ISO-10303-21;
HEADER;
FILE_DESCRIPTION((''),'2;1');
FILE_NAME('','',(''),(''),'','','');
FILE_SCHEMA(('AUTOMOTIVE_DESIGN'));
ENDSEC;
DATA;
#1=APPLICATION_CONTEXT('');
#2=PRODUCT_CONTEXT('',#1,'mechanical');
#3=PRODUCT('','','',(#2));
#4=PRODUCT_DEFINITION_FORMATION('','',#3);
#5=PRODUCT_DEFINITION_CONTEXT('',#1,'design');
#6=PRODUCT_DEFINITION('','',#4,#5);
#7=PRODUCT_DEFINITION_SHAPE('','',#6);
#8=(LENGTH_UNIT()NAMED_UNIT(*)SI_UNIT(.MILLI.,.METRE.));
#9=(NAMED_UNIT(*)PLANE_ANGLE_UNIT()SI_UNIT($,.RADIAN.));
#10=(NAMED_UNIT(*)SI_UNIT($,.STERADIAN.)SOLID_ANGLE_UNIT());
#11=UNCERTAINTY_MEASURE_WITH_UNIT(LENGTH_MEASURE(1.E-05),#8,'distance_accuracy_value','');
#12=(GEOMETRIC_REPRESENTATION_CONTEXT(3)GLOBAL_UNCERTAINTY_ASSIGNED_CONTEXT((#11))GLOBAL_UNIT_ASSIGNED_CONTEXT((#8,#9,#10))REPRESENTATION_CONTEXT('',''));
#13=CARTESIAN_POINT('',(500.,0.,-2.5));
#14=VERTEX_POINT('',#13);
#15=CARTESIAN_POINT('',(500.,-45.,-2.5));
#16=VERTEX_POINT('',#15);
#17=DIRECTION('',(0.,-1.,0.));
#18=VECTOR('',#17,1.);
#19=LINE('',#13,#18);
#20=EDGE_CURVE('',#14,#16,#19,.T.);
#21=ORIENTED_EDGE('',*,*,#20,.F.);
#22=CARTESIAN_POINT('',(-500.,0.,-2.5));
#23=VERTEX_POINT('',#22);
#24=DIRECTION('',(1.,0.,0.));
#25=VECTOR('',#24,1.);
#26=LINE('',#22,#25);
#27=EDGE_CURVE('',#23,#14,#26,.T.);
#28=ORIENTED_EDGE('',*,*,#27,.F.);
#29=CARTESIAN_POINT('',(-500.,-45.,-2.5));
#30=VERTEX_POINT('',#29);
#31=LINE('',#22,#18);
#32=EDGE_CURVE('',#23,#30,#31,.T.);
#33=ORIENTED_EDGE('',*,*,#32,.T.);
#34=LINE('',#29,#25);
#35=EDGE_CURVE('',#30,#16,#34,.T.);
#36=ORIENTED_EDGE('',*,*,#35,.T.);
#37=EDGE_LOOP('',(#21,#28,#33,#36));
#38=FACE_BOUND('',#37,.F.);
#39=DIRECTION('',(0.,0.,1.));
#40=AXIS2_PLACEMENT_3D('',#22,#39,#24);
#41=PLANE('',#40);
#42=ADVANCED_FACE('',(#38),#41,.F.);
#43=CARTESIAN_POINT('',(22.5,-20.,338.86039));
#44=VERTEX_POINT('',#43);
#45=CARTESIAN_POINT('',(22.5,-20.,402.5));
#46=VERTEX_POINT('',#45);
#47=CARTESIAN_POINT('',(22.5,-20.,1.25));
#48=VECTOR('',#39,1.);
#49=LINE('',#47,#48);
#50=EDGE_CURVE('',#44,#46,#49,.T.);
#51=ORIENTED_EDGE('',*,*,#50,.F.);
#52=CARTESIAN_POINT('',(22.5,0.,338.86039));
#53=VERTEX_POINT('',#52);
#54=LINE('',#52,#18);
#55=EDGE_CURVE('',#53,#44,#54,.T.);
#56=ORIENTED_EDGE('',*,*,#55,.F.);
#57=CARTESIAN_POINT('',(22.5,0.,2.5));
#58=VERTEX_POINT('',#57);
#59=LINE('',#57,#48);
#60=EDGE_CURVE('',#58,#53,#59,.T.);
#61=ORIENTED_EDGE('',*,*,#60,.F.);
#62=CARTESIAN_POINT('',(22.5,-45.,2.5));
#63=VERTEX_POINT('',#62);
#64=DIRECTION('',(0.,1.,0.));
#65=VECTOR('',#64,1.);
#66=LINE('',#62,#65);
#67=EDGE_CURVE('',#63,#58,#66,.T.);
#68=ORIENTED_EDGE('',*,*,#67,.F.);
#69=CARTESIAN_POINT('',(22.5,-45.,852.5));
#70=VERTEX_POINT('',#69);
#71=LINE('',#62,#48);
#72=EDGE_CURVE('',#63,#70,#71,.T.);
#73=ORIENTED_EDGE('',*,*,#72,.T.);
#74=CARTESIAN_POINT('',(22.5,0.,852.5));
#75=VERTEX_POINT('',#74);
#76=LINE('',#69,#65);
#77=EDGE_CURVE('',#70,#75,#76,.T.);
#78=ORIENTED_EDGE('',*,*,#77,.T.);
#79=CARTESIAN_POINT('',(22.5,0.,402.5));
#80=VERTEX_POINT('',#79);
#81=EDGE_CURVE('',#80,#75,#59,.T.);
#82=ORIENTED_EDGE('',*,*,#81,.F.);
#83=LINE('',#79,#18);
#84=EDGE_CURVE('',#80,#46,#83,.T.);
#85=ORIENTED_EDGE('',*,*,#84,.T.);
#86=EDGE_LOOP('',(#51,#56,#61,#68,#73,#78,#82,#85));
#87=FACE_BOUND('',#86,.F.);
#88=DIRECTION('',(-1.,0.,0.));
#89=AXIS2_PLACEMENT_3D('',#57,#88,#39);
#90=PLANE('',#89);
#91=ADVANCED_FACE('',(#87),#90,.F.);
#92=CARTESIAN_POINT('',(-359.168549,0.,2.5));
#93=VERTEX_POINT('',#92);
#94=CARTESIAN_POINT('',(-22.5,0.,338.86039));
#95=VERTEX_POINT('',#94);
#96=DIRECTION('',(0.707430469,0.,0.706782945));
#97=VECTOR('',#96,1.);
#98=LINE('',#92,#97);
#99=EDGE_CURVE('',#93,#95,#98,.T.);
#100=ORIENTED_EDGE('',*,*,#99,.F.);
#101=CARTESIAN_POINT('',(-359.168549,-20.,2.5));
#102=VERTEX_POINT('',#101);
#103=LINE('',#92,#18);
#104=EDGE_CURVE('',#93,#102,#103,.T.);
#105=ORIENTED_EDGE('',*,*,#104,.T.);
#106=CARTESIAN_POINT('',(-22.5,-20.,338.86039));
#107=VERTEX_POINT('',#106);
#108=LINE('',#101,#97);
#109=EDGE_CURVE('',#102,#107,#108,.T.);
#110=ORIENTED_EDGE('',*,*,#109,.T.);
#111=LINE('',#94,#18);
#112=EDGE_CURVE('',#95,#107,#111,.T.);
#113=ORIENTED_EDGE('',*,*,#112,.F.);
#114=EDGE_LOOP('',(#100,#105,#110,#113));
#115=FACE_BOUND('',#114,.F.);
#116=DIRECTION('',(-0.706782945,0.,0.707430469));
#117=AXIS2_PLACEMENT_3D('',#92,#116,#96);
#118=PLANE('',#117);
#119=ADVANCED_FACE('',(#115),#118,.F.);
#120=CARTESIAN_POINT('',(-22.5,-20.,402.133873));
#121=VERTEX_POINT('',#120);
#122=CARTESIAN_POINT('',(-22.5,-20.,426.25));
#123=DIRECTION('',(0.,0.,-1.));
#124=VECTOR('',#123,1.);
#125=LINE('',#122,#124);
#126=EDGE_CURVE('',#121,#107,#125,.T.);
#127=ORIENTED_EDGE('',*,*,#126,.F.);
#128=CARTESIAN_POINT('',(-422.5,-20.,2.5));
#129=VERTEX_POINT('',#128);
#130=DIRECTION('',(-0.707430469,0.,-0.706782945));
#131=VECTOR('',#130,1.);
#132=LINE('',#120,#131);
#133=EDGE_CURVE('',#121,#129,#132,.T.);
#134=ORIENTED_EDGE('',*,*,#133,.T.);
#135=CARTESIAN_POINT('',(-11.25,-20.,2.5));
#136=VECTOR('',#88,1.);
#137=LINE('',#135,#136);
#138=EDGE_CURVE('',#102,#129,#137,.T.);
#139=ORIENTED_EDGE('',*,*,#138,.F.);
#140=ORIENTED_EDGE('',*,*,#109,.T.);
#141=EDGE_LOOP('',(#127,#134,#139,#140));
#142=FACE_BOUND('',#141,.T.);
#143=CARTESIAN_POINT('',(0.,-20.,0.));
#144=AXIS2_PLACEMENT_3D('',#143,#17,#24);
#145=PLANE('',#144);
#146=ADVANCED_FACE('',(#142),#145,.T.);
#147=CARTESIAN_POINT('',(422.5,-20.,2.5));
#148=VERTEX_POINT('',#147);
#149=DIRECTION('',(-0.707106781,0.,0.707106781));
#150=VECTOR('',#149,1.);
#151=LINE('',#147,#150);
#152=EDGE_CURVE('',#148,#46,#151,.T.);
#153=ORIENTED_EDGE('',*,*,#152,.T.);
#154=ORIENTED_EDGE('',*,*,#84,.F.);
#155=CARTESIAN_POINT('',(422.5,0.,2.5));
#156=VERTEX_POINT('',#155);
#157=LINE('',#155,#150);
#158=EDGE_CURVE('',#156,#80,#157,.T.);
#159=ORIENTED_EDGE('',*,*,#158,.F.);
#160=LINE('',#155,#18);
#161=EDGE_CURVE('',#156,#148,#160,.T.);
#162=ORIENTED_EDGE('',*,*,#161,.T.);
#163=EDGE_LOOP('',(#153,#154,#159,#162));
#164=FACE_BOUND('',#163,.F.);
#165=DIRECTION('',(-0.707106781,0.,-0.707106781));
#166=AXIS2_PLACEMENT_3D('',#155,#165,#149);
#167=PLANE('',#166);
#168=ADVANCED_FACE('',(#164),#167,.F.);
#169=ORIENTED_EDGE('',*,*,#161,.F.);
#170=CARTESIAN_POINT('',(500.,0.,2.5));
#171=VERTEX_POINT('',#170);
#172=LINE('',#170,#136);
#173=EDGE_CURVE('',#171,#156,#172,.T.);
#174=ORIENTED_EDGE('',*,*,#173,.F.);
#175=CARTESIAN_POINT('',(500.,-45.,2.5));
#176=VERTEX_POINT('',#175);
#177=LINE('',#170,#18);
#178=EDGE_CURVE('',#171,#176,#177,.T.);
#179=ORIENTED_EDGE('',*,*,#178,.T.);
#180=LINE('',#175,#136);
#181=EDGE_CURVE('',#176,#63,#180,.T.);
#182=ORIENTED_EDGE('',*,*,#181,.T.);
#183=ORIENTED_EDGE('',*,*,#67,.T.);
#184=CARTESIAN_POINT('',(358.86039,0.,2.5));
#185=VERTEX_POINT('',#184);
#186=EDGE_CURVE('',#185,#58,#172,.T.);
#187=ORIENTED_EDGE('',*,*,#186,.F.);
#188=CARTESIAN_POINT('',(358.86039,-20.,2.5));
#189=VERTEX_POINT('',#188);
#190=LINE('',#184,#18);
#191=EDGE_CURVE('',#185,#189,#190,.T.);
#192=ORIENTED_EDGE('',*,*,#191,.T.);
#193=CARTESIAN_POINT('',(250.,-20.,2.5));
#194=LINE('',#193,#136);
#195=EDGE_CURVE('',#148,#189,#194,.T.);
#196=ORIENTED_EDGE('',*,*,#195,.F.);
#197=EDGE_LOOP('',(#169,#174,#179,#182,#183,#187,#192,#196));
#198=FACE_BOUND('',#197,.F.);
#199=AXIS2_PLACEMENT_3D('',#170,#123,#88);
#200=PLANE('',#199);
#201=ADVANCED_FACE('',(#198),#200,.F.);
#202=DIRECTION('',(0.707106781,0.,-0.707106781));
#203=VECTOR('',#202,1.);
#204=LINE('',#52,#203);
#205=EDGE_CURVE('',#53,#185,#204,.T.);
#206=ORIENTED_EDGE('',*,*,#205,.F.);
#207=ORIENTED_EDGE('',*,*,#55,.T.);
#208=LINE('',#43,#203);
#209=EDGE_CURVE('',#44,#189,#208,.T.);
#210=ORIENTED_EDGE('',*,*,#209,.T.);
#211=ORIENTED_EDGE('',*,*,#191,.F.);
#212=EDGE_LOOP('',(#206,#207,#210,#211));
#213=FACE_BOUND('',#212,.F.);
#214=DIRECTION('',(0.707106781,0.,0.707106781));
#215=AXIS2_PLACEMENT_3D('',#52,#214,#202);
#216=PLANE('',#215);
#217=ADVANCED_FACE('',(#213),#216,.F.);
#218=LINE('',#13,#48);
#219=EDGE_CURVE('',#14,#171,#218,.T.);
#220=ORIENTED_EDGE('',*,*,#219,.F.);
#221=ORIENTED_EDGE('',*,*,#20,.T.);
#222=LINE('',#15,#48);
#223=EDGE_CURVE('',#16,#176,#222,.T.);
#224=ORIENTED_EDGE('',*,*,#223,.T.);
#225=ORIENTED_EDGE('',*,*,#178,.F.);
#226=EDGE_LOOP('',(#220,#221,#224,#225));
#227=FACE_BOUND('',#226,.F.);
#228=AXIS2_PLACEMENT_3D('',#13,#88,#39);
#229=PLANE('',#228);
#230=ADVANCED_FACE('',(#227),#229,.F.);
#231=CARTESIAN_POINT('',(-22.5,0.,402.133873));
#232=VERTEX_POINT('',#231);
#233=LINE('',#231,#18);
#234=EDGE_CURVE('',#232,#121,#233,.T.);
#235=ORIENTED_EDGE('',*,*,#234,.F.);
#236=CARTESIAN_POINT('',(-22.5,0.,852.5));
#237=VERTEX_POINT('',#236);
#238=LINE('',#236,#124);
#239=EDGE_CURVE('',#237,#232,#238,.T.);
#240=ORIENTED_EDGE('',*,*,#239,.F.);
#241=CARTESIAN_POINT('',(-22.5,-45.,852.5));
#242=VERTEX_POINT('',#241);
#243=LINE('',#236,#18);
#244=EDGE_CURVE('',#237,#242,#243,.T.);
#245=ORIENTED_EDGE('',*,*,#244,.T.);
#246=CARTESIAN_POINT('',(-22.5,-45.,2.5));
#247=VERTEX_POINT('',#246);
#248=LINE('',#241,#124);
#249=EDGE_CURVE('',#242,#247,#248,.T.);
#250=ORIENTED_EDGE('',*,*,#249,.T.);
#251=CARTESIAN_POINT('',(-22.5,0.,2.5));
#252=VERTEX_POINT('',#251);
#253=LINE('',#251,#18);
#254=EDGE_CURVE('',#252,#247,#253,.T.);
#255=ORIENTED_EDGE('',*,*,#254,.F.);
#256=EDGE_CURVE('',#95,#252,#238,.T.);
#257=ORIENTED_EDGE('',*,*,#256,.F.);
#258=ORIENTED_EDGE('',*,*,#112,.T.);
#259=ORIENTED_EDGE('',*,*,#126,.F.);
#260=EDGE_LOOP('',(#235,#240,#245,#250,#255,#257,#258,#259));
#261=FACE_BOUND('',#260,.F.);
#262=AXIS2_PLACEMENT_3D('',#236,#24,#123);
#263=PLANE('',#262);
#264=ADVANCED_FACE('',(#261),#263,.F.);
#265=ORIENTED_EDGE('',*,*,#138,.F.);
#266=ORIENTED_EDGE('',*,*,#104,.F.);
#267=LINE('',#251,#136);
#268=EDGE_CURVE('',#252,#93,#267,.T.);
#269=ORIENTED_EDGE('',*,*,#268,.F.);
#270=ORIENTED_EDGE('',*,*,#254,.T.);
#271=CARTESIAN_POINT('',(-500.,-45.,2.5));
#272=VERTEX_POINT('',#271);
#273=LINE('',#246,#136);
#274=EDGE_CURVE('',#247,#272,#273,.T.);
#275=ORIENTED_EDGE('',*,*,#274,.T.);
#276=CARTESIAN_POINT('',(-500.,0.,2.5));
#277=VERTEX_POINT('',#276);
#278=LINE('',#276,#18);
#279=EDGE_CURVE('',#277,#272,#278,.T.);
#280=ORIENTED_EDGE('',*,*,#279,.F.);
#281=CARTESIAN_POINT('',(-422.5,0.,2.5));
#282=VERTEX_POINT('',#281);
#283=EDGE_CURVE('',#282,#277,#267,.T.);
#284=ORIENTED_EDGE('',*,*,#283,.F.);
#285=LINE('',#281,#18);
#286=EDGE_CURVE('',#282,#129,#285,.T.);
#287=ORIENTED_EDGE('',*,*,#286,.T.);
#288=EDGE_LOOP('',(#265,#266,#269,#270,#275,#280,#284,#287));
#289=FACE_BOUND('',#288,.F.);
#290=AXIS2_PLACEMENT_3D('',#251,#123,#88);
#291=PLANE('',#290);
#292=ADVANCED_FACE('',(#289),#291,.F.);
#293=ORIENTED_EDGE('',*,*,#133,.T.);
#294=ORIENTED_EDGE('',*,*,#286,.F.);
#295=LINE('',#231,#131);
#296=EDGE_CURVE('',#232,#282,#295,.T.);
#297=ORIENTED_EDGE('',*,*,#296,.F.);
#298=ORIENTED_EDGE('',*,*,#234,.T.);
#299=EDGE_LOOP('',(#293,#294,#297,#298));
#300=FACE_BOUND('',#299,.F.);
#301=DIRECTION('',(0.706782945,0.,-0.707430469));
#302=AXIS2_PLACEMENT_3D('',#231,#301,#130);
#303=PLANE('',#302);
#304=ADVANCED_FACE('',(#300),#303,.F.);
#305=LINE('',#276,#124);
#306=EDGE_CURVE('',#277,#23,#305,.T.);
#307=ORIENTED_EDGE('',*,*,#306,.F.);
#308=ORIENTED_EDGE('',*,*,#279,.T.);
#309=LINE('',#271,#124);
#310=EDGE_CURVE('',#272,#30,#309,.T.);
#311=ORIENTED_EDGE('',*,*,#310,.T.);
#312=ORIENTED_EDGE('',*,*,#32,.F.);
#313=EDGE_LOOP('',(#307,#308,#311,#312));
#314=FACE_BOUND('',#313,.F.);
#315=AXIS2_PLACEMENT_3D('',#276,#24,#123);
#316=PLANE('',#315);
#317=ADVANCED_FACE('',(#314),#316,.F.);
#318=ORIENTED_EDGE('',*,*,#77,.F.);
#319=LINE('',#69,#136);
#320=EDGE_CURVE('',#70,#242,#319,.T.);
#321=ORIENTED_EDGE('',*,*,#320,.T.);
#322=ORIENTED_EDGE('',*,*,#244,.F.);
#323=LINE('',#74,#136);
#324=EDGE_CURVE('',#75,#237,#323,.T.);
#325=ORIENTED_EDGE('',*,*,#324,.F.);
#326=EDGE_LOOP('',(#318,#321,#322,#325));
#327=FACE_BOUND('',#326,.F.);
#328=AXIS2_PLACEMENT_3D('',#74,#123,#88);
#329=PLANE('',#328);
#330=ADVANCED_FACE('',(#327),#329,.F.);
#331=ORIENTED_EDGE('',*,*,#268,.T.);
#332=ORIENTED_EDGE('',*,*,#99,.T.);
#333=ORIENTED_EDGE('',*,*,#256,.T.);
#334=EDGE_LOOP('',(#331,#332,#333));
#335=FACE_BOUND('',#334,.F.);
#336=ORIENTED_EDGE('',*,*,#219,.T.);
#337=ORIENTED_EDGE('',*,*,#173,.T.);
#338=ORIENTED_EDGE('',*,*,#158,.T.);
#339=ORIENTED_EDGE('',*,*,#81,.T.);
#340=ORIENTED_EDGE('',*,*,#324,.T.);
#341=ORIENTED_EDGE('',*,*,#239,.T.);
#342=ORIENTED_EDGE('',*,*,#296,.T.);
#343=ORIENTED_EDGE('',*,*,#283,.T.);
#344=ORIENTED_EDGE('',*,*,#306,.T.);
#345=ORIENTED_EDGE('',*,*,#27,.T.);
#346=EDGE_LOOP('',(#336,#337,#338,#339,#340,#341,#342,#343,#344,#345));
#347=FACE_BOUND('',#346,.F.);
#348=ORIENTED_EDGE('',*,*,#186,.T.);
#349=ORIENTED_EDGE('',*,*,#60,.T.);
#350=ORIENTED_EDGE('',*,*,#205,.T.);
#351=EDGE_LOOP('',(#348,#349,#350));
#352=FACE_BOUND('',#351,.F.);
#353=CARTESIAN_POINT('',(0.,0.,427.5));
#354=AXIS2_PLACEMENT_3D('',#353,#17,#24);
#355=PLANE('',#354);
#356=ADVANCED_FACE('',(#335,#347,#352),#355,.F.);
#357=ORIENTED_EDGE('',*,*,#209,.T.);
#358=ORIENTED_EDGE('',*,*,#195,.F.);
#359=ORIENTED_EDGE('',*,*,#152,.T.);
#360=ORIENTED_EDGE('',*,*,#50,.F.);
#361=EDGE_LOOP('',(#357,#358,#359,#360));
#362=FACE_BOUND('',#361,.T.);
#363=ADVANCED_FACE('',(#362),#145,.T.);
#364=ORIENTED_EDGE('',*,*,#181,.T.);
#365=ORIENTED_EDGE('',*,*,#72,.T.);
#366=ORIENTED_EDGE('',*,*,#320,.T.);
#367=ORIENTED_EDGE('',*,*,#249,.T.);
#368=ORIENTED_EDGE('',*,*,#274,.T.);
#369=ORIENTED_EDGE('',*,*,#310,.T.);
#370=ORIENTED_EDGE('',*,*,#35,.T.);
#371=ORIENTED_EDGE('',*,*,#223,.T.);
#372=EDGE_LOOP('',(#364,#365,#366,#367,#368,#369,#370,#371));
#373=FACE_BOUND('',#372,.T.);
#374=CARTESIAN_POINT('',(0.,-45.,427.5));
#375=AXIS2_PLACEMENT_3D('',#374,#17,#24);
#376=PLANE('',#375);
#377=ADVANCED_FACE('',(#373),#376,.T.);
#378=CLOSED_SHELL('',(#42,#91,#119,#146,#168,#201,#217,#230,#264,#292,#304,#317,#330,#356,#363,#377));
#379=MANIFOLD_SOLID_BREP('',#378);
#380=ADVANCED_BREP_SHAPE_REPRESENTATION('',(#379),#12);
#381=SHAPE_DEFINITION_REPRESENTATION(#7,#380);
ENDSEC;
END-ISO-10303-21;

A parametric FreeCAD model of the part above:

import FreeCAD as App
import Part
import Sketcher


def add_polygon(sketch, points):
    """Adds a closed chain of lines whose ends are joined by coincident constraints."""
    first, n = sketch.GeometryCount, len(points)
    for a, b in zip(points, points[1:] + points[:1]):
        sketch.addGeometry(Part.LineSegment(App.Vector(*a, 0), App.Vector(*b, 0)), False)
    for i in range(n):
        sketch.addConstraint(Sketcher.Constraint("Coincident", first + i, 2, first + (i + 1) % n, 1))

doc = App.newDocument("Part")
params = doc.addObject("Spreadsheet::Sheet", "Params")
for row, (alias, value) in enumerate([
    ("sketch1_width", "45 mm"),
    ("sketch1_width2", "1000 mm"),
    ("sketch1_height", "850 mm"),
    ("sketch1_height2", "5 mm"),
    ("pad1_length", "45 mm"),
    ("sketch2_width", "45 mm"),
    ("sketch2_width2", "1000 mm"),
    ("sketch2_height", "5 mm"),
    ("sketch2_height2", "450 mm"),
    ("sketch2_width3", "77.5 mm"),
    ("pad2_length", "20 mm"),
], start=1):
    params.set(f"A{row}", alias)
    params.set(f"B{row}", "=" + value)
    params.setAlias(f"B{row}", alias)

body = doc.addObject("PartDesign::Body", "Body")

sketch1 = body.newObject("Sketcher::SketchObject", "Sketch")
sketch1.AttachmentSupport = (doc.getObject("XZ_Plane"), [""])
sketch1.MapMode = "FlatFace"
add_polygon(sketch1, [(22, 852), (-22, 852), (-22, 2), (-500, 2), (-500, -2), (500, -2), (500, 2), (22, 2)])
sketch1.addConstraint([
    Sketcher.Constraint("Horizontal", 0),
    Sketcher.Constraint("Vertical", 1),
    Sketcher.Constraint("Horizontal", 2),
    Sketcher.Constraint("Vertical", 3),
    Sketcher.Constraint("Horizontal", 4),
    Sketcher.Constraint("Vertical", 5),
    Sketcher.Constraint("Horizontal", 6),
    Sketcher.Constraint("Vertical", 7),
    Sketcher.Constraint("Symmetric", 2, 2, 4, 2, -1, 1),
    Sketcher.Constraint("Symmetric", 1, 2, 6, 2, -2),
    Sketcher.Constraint("DistanceX", 0, 2, 0, 1, 45.0),
    Sketcher.Constraint("DistanceX", 4, 1, 4, 2, 1000.0),
    Sketcher.Constraint("DistanceY", 1, 2, 1, 1, 850.0),
    Sketcher.Constraint("DistanceY", 3, 2, 3, 1, 5.0),
])
sketch1.setExpression("Constraints[18]", "Params.sketch1_width")
sketch1.setExpression("Constraints[19]", "Params.sketch1_width2")
sketch1.setExpression("Constraints[20]", "Params.sketch1_height")
sketch1.setExpression("Constraints[21]", "Params.sketch1_height2")
pad1 = body.newObject("PartDesign::Pad", "Pad")
pad1.Profile = sketch1
pad1.setExpression("Length", "Params.pad1_length")

sketch2 = body.newObject("Sketcher::SketchObject", "Sketch001")
sketch2.AttachmentSupport = (doc.getObject("XZ_Plane"), [""])
sketch2.MapMode = "FlatFace"
add_polygon(sketch2, [(500, -2), (500, 2), (422, 2), (22, 402), (22, 852), (-22, 852), (-22, 402), (-422, 2), (-500, 2), (-500, -2)])
add_polygon(sketch2, [(-22, 339), (-22, 2), (-359, 2)])
add_polygon(sketch2, [(22, 339), (359, 2), (22, 2)])
sketch2.addConstraint([
    Sketcher.Constraint("Vertical", 0),
    Sketcher.Constraint("Horizontal", 1),
    Sketcher.Constraint("Vertical", 3),
    Sketcher.Constraint("Horizontal", 4),
    Sketcher.Constraint("Vertical", 5),
    Sketcher.Constraint("Horizontal", 7),
    Sketcher.Constraint("Vertical", 8),
    Sketcher.Constraint("Horizontal", 9),
    Sketcher.Constraint("Vertical", 10),
    Sketcher.Constraint("Horizontal", 11),
    Sketcher.Constraint("Horizontal", 14),
    Sketcher.Constraint("Vertical", 15),
    Sketcher.Constraint("Symmetric", 0, 2, 8, 2, -1, 1),
    Sketcher.Constraint("Symmetric", 1, 2, 6, 2, -2),
    Sketcher.Constraint("Symmetric", 10, 2, 14, 2, -2),
    Sketcher.Constraint("Parallel", 6, 12),
    Sketcher.Constraint("Parallel", 2, 13),
    Sketcher.Constraint("Horizontal", 7, 2, 10, 2),
    Sketcher.Constraint("Horizontal", 12, 2, 15, 2),
    Sketcher.Constraint("Vertical", 5, 2, 10, 2),
    Sketcher.Constraint("Vertical", 3, 2, 14, 2),
    Sketcher.Constraint("Equal", 14, 10),
    Sketcher.Constraint("DistanceX", 4, 2, 4, 1, 45.0),
    Sketcher.Constraint("DistanceX", 9, 1, 9, 2, 1000.0),
    Sketcher.Constraint("DistanceY", 0, 1, 0, 2, 5.0),
    Sketcher.Constraint("DistanceY", 3, 1, 3, 2, 450.0),
    Sketcher.Constraint("DistanceX", 1, 2, 1, 1, 77.5),
    Sketcher.Constraint("DistanceX", 11, 2, 11, 1, 336.668549),
    Sketcher.Constraint("DistanceX", 14, 2, 14, 1, 336.36039),
])
sketch2.setExpression("Constraints[38]", "Params.sketch2_width")
sketch2.setExpression("Constraints[39]", "Params.sketch2_width2")
sketch2.setExpression("Constraints[40]", "Params.sketch2_height")
sketch2.setExpression("Constraints[41]", "Params.sketch2_height2")
sketch2.setExpression("Constraints[42]", "Params.sketch2_width3")
pad2 = body.newObject("PartDesign::Pad", "Pad001")
pad2.Profile = sketch2
pad2.setExpression("Length", "Params.pad2_length")

doc.recompute()
